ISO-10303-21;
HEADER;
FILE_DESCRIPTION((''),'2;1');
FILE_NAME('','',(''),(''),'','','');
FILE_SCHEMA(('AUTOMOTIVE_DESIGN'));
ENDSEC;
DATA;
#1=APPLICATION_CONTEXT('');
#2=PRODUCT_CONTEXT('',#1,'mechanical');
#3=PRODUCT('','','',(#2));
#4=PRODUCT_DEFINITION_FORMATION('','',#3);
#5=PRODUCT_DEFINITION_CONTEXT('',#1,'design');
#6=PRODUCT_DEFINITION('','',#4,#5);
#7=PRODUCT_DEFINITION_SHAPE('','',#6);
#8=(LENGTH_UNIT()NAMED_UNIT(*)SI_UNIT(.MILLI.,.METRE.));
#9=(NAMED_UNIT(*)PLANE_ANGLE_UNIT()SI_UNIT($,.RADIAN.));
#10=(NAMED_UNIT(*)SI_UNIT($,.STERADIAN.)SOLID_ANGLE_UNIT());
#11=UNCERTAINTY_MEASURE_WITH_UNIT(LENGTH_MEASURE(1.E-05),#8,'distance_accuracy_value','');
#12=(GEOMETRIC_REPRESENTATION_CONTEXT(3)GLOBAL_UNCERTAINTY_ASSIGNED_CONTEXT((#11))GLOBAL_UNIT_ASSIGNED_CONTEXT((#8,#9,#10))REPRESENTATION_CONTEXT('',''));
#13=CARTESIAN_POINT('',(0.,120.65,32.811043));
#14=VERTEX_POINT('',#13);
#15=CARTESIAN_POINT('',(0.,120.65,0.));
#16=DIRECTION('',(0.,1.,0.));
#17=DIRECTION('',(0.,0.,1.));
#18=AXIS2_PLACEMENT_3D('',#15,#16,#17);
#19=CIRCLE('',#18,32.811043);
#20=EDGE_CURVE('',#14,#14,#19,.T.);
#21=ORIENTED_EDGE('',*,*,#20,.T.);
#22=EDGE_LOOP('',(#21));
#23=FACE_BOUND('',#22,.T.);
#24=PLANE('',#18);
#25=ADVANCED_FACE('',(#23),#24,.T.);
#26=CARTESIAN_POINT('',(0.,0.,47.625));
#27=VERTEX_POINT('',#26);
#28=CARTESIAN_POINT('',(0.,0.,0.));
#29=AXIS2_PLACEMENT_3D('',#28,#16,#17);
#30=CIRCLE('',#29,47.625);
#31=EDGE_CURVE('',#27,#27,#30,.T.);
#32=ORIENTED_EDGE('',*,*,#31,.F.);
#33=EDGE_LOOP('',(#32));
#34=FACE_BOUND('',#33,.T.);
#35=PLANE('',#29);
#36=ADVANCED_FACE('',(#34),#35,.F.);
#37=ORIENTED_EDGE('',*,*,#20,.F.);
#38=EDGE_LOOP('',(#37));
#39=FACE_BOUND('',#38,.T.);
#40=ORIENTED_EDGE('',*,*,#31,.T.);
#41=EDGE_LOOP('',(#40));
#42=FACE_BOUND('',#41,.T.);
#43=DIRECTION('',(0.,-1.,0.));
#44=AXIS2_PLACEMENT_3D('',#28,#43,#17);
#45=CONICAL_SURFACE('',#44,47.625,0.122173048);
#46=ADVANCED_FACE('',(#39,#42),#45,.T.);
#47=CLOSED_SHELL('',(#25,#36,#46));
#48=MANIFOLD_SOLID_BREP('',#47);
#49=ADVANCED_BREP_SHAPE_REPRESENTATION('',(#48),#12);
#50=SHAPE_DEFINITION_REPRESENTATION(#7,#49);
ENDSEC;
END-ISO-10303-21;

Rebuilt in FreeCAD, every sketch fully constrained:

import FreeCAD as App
import Part
import Sketcher

V = App.Vector
Q = App.Units.Quantity

doc = App.newDocument("Part")
params = doc.addObject("Spreadsheet::Sheet", "Params")
for row, (alias, value) in enumerate([
    ("sketch1_diameter", "3.75 in"),
    ("pad1_length", "4.75 in"),
    ("pad1_taper", "-7 deg"),
], start=1):
    params.set(f"A{row}", alias)
    params.set(f"B{row}", "=" + value)
    params.setAlias(f"B{row}", alias)

body = doc.addObject("PartDesign::Body", "Body")

# Sketch on XZ plane
sketch1 = doc.addObject("Sketcher::SketchObject", "Sketch")
body.addObject(sketch1)
sketch1.AttachmentSupport = (doc.XZ_Plane, [""])
sketch1.MapMode = "FlatFace"
sketch1.addGeometry(Part.Circle(V(0, 0, 0), V(0, 0, 1), 47.625), False)
sketch1.addConstraint(Sketcher.Constraint("Coincident", 0, 3, -1, 1))
sketch1.addConstraint(Sketcher.Constraint("Diameter", 0, Q("3.75 in")))
sketch1.setExpression("Constraints[1]", "Params.sketch1_diameter")
pad1 = doc.addObject("PartDesign::Pad", "Pad")
body.addObject(pad1)
pad1.Profile = sketch1
pad1.setExpression("Length", "Params.pad1_length")
pad1.Reversed = True
pad1.setExpression("TaperAngle", "Params.pad1_taper")

doc.recompute()
